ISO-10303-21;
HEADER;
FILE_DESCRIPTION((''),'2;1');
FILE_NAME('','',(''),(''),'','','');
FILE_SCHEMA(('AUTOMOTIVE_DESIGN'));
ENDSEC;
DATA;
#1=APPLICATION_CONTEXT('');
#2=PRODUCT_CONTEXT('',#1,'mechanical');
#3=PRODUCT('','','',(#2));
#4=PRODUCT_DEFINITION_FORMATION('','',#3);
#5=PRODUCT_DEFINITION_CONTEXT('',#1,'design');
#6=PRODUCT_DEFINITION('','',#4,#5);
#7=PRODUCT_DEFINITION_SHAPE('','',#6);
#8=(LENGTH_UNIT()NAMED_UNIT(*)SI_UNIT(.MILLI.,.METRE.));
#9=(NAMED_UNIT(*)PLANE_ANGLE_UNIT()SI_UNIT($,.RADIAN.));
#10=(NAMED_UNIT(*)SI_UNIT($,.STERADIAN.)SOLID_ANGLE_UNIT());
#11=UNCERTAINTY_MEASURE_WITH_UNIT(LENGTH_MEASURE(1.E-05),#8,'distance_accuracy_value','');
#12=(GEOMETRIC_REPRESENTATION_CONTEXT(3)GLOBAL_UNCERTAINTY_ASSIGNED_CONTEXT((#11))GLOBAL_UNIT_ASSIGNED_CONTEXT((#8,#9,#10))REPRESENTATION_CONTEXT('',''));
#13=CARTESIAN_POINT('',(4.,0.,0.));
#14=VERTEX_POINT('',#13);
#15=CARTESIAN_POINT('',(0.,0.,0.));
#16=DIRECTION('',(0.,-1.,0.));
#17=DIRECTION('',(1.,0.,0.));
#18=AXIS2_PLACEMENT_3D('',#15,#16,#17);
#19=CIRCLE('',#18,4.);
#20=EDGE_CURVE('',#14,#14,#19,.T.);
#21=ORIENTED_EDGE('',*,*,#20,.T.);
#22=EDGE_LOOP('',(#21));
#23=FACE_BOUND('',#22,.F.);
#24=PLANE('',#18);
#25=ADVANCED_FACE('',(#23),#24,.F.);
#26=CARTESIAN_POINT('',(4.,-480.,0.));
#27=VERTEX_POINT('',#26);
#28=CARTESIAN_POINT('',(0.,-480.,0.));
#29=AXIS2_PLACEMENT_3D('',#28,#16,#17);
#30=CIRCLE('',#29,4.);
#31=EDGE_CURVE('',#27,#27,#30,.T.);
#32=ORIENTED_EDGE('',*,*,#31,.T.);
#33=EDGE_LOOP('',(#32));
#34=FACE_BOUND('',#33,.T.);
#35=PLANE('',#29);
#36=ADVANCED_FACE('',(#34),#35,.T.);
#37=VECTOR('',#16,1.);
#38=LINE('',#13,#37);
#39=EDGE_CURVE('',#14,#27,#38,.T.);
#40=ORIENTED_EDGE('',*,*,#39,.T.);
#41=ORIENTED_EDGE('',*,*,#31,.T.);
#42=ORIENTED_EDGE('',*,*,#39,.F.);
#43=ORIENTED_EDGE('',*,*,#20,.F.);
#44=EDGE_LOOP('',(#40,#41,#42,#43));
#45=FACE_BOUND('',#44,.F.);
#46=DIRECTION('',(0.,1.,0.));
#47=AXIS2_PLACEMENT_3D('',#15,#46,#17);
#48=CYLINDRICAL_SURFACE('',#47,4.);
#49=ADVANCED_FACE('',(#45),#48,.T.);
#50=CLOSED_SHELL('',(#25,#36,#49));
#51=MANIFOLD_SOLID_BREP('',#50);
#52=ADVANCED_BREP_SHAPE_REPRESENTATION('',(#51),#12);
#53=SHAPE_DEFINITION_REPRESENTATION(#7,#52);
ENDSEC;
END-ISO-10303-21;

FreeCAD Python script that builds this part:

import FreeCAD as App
import Part
import Sketcher
from FreeCAD import Vector

doc = App.newDocument("Part")
params = doc.addObject("Spreadsheet::Sheet", "Params")
for row, (alias, value) in enumerate([
    ("sketch1_diameter", "8 mm"),
    ("pad1_length", "480 mm"),
], start=1):
    params.set(f"A{row}", alias)
    params.set(f"B{row}", "=" + value)
    params.setAlias(f"B{row}", alias)

body = doc.addObject("PartDesign::Body", "Body")

# Sketch on XZ plane
sketch1 = doc.addObject("Sketcher::SketchObject", "Sketch")
body.addObject(sketch1)
sketch1.AttachmentSupport = (doc.XZ_Plane, [""])
sketch1.MapMode = "FlatFace"
sketch1.addGeometry(Part.Circle(Vector(0, 0, 0), Vector(0, 0, 1), 4), False)
sketch1.addConstraint([
    Sketcher.Constraint("Coincident", 0, 3, -1, 1),
    Sketcher.Constraint("Diameter", 0, 8.0),
])
sketch1.setExpression("Constraints[1]", "Params.sketch1_diameter")
pad1 = doc.addObject("PartDesign::Pad", "Pad")
body.addObject(pad1)
pad1.Profile = sketch1
pad1.setExpression("Length", "Params.pad1_length")

doc.recompute()
